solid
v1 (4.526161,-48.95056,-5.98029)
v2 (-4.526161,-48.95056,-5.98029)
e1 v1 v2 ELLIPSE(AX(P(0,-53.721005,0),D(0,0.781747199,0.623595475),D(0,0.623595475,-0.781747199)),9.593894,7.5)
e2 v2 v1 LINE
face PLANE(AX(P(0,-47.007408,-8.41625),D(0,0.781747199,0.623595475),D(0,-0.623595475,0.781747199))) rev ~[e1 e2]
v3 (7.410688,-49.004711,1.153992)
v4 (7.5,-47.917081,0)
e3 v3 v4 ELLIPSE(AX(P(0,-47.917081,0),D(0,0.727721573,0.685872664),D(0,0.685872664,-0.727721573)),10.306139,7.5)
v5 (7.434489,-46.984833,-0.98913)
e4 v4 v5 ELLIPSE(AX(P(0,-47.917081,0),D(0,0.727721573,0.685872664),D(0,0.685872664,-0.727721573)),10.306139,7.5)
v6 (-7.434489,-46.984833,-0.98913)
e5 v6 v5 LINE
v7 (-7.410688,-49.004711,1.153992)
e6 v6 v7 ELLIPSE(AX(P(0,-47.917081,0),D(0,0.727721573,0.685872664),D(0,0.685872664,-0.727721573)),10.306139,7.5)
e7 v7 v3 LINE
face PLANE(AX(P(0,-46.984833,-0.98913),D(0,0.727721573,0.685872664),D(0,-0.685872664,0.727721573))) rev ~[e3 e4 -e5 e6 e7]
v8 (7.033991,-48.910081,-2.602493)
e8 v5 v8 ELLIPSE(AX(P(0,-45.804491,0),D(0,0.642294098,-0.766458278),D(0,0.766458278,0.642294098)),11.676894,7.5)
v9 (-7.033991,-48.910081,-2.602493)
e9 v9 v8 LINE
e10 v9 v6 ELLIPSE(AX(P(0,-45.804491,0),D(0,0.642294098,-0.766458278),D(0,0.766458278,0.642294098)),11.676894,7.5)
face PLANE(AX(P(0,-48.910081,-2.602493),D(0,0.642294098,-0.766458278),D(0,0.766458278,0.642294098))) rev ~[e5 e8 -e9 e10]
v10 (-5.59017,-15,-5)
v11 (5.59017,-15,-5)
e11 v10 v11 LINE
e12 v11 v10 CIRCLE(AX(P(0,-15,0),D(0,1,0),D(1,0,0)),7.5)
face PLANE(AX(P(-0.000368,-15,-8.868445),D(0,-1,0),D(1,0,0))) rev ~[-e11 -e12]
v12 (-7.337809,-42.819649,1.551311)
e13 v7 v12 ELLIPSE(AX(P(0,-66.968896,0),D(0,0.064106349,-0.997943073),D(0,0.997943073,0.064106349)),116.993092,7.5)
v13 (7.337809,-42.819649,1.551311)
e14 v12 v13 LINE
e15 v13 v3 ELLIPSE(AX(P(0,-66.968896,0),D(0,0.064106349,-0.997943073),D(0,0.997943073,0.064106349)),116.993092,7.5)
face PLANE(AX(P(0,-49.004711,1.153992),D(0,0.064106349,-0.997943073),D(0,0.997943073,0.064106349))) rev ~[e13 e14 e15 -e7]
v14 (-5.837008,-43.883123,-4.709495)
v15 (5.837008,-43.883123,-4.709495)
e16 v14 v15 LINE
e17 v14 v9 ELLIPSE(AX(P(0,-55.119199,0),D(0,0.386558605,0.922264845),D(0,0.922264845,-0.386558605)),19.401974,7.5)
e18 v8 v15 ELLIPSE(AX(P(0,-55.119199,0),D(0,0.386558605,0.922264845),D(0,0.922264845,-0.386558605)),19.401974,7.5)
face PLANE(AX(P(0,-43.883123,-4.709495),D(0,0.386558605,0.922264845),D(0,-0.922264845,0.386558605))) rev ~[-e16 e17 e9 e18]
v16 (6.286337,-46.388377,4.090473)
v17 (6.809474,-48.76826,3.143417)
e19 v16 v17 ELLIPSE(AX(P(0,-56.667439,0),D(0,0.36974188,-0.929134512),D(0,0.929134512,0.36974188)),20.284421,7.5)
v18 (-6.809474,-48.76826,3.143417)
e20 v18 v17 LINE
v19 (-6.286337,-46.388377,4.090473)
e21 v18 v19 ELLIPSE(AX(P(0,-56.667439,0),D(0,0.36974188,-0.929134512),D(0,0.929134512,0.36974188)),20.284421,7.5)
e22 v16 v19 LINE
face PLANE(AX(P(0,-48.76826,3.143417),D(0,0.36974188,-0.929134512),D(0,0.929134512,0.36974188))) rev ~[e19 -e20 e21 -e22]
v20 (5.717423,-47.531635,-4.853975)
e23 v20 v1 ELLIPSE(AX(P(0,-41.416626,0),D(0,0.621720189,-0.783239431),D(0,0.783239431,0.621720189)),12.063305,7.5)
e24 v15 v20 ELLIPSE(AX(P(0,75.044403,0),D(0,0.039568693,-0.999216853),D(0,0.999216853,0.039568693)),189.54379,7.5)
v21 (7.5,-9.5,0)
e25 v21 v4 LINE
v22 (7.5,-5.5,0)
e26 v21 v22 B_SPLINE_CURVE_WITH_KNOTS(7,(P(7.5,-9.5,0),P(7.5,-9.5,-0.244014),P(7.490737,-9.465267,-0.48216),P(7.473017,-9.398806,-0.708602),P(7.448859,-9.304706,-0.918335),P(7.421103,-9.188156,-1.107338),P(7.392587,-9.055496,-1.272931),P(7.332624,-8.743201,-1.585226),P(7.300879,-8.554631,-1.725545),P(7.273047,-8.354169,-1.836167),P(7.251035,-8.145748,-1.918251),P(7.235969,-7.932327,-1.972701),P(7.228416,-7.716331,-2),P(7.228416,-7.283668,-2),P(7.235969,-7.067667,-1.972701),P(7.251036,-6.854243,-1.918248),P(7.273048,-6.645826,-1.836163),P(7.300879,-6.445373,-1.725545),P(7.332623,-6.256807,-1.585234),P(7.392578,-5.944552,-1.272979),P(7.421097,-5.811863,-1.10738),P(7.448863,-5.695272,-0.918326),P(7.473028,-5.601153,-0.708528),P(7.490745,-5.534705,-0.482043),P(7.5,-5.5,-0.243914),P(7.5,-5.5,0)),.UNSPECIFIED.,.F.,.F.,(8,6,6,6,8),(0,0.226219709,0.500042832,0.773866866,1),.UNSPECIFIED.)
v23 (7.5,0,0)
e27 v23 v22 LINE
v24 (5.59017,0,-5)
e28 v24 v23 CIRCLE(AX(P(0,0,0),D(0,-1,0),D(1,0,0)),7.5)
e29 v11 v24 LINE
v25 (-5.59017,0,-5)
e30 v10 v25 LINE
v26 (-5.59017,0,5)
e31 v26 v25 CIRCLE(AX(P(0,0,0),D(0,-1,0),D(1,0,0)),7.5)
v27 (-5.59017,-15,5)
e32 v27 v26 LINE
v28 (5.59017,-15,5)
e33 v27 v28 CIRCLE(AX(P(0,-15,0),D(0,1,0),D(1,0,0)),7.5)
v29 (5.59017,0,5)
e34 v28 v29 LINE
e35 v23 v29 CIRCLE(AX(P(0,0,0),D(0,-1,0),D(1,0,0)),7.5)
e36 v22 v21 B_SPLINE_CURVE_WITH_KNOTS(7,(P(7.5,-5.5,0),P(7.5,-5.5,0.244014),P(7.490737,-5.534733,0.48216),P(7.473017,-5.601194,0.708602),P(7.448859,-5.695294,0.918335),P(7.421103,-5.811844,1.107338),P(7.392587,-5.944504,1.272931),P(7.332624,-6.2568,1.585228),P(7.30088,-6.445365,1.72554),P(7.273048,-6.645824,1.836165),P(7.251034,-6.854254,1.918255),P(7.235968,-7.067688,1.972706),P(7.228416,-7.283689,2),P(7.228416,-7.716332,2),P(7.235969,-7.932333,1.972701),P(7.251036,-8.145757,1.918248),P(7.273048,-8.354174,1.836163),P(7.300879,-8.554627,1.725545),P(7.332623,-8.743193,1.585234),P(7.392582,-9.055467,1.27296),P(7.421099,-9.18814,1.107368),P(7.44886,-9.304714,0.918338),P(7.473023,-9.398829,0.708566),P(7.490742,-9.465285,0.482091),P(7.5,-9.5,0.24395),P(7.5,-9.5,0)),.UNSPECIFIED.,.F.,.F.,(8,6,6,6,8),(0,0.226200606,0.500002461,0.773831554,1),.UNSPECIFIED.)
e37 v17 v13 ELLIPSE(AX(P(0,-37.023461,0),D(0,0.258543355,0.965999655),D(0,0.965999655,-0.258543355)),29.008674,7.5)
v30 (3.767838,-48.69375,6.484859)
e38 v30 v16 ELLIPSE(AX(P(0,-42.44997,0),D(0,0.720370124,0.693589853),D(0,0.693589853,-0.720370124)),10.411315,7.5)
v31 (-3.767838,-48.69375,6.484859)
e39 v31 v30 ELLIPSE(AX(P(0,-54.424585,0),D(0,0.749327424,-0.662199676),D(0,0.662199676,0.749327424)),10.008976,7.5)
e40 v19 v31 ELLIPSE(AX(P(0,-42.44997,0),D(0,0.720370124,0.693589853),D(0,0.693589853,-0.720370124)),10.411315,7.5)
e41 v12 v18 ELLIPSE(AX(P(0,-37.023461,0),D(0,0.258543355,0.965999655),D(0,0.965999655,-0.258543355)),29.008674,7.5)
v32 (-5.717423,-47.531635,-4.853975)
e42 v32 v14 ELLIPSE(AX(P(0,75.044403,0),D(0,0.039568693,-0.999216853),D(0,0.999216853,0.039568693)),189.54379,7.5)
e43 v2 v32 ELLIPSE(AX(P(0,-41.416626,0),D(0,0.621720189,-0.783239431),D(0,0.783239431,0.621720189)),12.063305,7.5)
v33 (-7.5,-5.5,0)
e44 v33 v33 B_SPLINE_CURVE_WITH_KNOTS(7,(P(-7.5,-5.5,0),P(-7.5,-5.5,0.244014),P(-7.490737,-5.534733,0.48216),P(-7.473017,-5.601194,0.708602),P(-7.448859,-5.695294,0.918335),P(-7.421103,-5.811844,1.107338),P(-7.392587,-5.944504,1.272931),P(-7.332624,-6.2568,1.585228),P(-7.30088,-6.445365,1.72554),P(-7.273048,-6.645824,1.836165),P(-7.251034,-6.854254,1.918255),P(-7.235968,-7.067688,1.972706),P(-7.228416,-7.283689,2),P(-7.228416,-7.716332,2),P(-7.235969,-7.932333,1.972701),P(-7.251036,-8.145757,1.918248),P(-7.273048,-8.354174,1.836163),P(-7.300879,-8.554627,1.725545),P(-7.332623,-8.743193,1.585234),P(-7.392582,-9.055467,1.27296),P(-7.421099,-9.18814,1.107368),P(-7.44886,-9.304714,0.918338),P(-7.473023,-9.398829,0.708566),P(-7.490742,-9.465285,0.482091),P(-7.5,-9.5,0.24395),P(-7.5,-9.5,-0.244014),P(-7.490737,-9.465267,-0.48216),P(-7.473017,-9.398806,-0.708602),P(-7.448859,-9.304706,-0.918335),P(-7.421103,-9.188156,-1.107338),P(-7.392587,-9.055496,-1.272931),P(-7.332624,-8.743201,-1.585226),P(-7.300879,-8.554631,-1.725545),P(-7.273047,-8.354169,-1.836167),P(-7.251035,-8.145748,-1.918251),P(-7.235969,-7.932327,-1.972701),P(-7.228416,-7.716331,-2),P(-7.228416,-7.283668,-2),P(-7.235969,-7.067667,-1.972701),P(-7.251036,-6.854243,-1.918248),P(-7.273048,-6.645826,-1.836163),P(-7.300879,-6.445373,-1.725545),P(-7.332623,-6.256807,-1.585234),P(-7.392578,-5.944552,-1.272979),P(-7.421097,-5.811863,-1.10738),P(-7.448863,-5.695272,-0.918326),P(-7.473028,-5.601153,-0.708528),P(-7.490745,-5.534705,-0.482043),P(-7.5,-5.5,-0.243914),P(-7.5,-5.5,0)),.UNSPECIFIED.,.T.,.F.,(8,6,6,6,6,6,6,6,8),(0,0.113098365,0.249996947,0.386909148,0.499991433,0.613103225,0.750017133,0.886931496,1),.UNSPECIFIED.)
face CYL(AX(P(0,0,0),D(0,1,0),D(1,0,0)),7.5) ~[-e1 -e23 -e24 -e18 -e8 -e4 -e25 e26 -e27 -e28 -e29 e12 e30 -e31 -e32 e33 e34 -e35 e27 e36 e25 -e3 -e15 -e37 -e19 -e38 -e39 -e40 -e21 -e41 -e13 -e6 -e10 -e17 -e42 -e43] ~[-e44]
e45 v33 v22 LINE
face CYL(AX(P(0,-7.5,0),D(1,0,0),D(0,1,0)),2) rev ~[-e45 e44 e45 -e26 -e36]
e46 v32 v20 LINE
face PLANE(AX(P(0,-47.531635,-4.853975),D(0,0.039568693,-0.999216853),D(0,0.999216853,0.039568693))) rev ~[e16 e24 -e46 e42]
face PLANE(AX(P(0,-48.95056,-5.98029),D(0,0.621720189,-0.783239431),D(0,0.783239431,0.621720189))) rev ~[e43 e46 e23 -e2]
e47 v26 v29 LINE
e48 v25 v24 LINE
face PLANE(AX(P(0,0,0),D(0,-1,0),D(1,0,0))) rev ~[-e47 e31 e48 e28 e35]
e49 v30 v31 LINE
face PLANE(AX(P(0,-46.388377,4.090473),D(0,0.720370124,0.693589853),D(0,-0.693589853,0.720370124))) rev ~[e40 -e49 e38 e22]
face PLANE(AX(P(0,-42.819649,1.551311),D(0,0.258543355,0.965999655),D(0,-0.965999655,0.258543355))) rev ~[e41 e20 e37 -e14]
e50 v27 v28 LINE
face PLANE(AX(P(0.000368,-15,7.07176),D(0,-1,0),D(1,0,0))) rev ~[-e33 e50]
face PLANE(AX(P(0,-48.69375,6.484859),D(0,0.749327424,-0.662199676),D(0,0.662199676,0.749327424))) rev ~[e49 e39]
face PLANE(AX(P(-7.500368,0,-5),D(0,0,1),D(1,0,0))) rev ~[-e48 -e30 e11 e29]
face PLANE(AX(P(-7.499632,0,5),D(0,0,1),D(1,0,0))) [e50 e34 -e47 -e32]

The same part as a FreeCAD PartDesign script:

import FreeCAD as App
import Part
import Sketcher
Q = App.Units.Quantity


def add_polygon(sketch, points):
    """Adds a closed chain of lines whose ends are joined by coincident constraints."""
    first, n = sketch.GeometryCount, len(points)
    for a, b in zip(points, points[1:] + points[:1]):
        sketch.addGeometry(Part.LineSegment(App.Vector(*a, 0), App.Vector(*b, 0)), False)
    for i in range(n):
        sketch.addConstraint(Sketcher.Constraint("Coincident", first + i, 2, first + (i + 1) % n, 1))

doc = App.newDocument("Part")
body = doc.addObject("PartDesign::Body", "Body")

# Sketch on XZ plane
sketch1 = doc.addObject("Sketcher::SketchObject", "Sketch")
body.addObject(sketch1)
sketch1.AttachmentSupport = (doc.XZ_Plane, [""])
sketch1.MapMode = "FlatFace"
sketch1.addGeometry(Part.Circle(App.Vector(0, 0, 0), App.Vector(0, 0, 1), 8), False)
sketch1.addConstraint([
    Sketcher.Constraint("Coincident", 0, 3, -1, 1),
    Sketcher.Constraint("Diameter", 0, Q("15 mm")),
])
pad1 = doc.addObject("PartDesign::Pad", "Pad")
body.addObject(pad1)
pad1.Profile = sketch1
pad1.Length = 50

# Sketch on YZ plane
sketch2 = doc.addObject("Sketcher::SketchObject", "Sketch001")
body.addObject(sketch2)
sketch2.AttachmentSupport = (doc.YZ_Plane, [""])
sketch2.MapMode = "FlatFace"
add_polygon(sketch2, [(-44.6, 11.1), (-51.3, 11.1), (-51.3, -8.6), (-47, -8.4), (-49, -6), (-47.5, -4.9), (-43.9, -4.7), (-48.9, -2.6), (-47, -1), (-49, 1.2), (-42.8, 1.6), (-48.8, 3.1), (-46.4, 4.1), (-48.7, 6.5)])  # lines 0-13
sketch2.addConstraint([
    Sketcher.Constraint("Horizontal", 0),
    Sketcher.Constraint("Vertical", 1),
    Sketcher.Constraint("DistanceX", 4, 2, 7, 2, Q("0.546802 mm")),
    Sketcher.Constraint("Distance", 4, Q("1.811611 mm")),
    Sketcher.Constraint("Distance", 5, Q("3.651372 mm")),
    Sketcher.Constraint("Distance", 9, Q("6.19781 mm")),
    Sketcher.Constraint("DistanceX", 0, 2, 0, 1, Q("6.692424 mm")),
    Sketcher.Constraint("DistanceY", 1, 2, 1, 1, Q("19.730244 mm")),
    Sketcher.Constraint("DistanceY", -1, 1, 0, 2, Q("11.14893 mm")),
    Sketcher.Constraint("DistanceY", 2, 2, -1, 1, Q("8.41625 mm")),
    Sketcher.Constraint("DistanceX", 3, 2, -1, 1, Q("48.95056 mm")),
    Sketcher.Constraint("DistanceY", 3, 2, -1, 1, Q("5.98029 mm")),
    Sketcher.Constraint("DistanceX", 6, 2, -1, 1, Q("48.910081 mm")),
    Sketcher.Constraint("DistanceY", 7, 2, -1, 1, Q("0.98913 mm")),
    Sketcher.Constraint("DistanceX", 8, 2, -1, 1, Q("49.004711 mm")),
    Sketcher.Constraint("DistanceY", -1, 1, 8, 2, Q("1.153992 mm")),
    Sketcher.Constraint("DistanceX", 9, 2, -1, 1, Q("42.819649 mm")),
    Sketcher.Constraint("DistanceX", 10, 2, -1, 1, Q("48.76826 mm")),
    Sketcher.Constraint("DistanceX", 12, 2, -1, 1, Q("48.69375 mm")),
    Sketcher.Constraint("DistanceY", -1, 1, 12, 2, Q("6.484859 mm")),
    Sketcher.Constraint("DistanceX", 1, 2, 4, 2, Q("3.732781 mm")),
    Sketcher.Constraint("DistanceY", 1, 2, 4, 2, Q("3.727339 mm")),
    Sketcher.Constraint("DistanceY", 4, 2, 5, 2, Q("0.14448 mm")),
    Sketcher.Constraint("DistanceY", 1, 2, 6, 2, Q("5.978821 mm")),
    Sketcher.Constraint("DistanceY", 6, 2, 10, 2, Q("5.74591 mm")),
    Sketcher.Constraint("DistanceY", 8, 2, 11, 2, Q("2.936481 mm")),
    Sketcher.Constraint("DistanceX", 11, 2, 9, 2, Q("3.568728 mm")),
    Sketcher.Constraint("Distance", 2, Q("4.260207 mm")),
])
pocket1 = doc.addObject("PartDesign::Pocket", "Pocket")
body.addObject(pocket1)
pocket1.Profile = sketch2
pocket1.Length = 25
pocket1.Midplane = True

# Sketch on XZ plane
sketch3 = doc.addObject("Sketcher::SketchObject", "Sketch002")
body.addObject(sketch3)
sketch3.AttachmentSupport = (doc.XZ_Plane, [""])
sketch3.MapMode = "FlatFace"
add_polygon(sketch3, [(-7.5, -5), (-7.5, -12.7), (7.5, -12.7), (7.5, -5)])  # lines 0-3
add_polygon(sketch3, [(-7.5, 9.1), (-7.5, 5), (7.5, 5), (7.5, 9.1)])  # lines 4-7
sketch3.addConstraint([
    Sketcher.Constraint("Vertical", 0),
    Sketcher.Constraint("Horizontal", 1),
    Sketcher.Constraint("Vertical", 2),
    Sketcher.Constraint("Horizontal", 3),
    Sketcher.Constraint("Vertical", 4),
    Sketcher.Constraint("Horizontal", 5),
    Sketcher.Constraint("Vertical", 6),
    Sketcher.Constraint("Horizontal", 7),
    Sketcher.Constraint("Symmetric", 2, 2, 4, 2, -1, 1),
    Sketcher.Constraint("Equal", 3, 5),
    Sketcher.Constraint("DistanceX", 1, 1, 1, 2, Q("15 mm")),
    Sketcher.Constraint("DistanceY", 2, 2, -1, 1, Q("5 mm")),
    Sketcher.Constraint("DistanceY", 0, 2, 0, 1, Q("7.736891 mm")),
    Sketcher.Constraint("DistanceY", 4, 2, 4, 1, Q("4.14352 mm")),
    Sketcher.Constraint("DistanceX", 0, 2, -1, 1, Q("7.500368 mm")),
])
pocket2 = doc.addObject("PartDesign::Pocket", "Pocket001")
body.addObject(pocket2)
pocket2.Profile = sketch3
pocket2.Length = 15
pocket2.Reversed = True

# Sketch on YZ plane
sketch4 = doc.addObject("Sketcher::SketchObject", "Sketch003")
body.addObject(sketch4)
sketch4.AttachmentSupport = (doc.YZ_Plane, [""])
sketch4.MapMode = "FlatFace"
sketch4.addGeometry(Part.Circle(App.Vector(-7.5, 0, 0), App.Vector(0, 0, 1), 2), False)
sketch4.addConstraint([
    Sketcher.Constraint("PointOnObject", 0, 3, -1),
    Sketcher.Constraint("Diameter", 0, Q("4 mm")),
    Sketcher.Constraint("DistanceX", 0, 3, -1, 1, Q("7.5 mm")),
])
pocket3 = doc.addObject("PartDesign::Pocket", "Pocket002")
body.addObject(pocket3)
pocket3.Profile = sketch4
pocket3.Length = 25
pocket3.Midplane = True

doc.recompute()
